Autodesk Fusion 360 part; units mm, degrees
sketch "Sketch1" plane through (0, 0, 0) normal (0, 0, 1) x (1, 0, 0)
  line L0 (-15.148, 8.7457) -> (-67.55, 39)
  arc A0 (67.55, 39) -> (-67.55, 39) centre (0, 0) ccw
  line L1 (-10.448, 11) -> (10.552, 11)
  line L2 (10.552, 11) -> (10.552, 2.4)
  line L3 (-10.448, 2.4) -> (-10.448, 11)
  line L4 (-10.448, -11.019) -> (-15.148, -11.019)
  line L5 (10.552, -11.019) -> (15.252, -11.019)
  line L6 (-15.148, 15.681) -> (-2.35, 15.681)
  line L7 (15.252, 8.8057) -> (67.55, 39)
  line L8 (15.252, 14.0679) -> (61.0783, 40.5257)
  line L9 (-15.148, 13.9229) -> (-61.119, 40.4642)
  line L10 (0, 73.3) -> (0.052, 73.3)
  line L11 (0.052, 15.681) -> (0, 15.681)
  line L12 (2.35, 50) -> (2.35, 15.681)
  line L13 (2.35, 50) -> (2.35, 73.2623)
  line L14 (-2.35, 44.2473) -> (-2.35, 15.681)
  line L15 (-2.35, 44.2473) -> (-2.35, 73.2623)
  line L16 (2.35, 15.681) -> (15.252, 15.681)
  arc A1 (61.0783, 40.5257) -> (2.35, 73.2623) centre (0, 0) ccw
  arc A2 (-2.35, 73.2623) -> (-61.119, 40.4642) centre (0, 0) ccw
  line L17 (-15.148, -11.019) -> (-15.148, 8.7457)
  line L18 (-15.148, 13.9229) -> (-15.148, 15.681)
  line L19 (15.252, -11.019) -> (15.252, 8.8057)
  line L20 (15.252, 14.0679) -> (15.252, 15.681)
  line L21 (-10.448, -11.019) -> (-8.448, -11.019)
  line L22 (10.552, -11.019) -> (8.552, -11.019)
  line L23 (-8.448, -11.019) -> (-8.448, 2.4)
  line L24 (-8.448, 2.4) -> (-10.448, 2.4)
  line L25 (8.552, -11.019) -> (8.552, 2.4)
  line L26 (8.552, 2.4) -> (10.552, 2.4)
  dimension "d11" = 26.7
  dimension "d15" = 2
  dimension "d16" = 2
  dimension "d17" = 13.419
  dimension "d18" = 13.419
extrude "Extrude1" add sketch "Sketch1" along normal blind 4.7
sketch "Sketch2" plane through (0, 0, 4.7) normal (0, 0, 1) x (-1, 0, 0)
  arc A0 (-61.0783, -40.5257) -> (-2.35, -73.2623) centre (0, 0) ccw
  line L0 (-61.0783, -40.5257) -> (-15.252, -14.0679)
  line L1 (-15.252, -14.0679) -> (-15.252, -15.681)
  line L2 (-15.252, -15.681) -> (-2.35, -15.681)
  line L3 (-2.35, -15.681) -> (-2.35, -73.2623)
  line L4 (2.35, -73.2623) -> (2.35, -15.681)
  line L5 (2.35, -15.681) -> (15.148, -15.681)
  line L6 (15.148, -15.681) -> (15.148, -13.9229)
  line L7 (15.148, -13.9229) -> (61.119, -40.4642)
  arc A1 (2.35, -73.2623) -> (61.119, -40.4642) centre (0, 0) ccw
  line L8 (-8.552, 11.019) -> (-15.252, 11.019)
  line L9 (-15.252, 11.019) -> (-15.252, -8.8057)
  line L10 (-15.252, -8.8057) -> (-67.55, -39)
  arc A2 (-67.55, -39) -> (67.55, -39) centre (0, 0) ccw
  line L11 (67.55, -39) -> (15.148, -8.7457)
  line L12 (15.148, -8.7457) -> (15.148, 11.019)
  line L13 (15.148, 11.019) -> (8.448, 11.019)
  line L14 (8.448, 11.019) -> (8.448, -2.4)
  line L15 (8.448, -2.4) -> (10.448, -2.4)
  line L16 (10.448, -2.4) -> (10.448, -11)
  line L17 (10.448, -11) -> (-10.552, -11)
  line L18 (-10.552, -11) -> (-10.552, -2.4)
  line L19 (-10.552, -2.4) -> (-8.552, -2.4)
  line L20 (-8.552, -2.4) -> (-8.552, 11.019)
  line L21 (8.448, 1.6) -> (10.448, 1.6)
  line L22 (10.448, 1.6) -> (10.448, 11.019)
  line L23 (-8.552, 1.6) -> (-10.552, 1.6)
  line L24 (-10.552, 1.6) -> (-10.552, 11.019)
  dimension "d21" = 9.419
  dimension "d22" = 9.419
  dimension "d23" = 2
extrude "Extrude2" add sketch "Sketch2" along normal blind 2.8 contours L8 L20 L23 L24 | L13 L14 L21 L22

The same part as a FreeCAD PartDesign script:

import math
import FreeCAD as App
import Part
import Sketcher
from FreeCAD import Vector
Q = App.Units.Quantity


def add_polygon(sketch, points):
    """Adds a closed chain of lines whose ends are joined by coincident constraints."""
    first, n = sketch.GeometryCount, len(points)
    for a, b in zip(points, points[1:] + points[:1]):
        sketch.addGeometry(Part.LineSegment(App.Vector(*a, 0), App.Vector(*b, 0)), False)
    for i in range(n):
        sketch.addConstraint(Sketcher.Constraint("Coincident", first + i, 2, first + (i + 1) % n, 1))

doc = App.newDocument("Part")
body = doc.addObject("PartDesign::Body", "Body")

# Sketch on XY plane
sketch1 = body.newObject("Sketcher::SketchObject", "Sketch")
sketch1.AttachmentSupport = (doc.getObject("XY_Plane"), [""])
sketch1.MapMode = "FlatFace"
sketch1.addGeometry(Part.LineSegment(Vector(-67.5, 39, 0), Vector(-15.1, 8.7, 0)), False)
sketch1.addGeometry(Part.LineSegment(Vector(-15.1, 8.7, 0), Vector(-15.1, -11, 0)), False)
sketch1.addGeometry(Part.LineSegment(Vector(-15.1, -11, 0), Vector(-8.4, -11, 0)), False)
sketch1.addGeometry(Part.LineSegment(Vector(-8.4, -11, 0), Vector(-8.4, 2.4, 0)), False)
sketch1.addGeometry(Part.LineSegment(Vector(-8.4, 2.4, 0), Vector(-10.4, 2.4, 0)), False)
sketch1.addGeometry(Part.LineSegment(Vector(-10.4, 2.4, 0), Vector(-10.4, 11, 0)), False)
sketch1.addGeometry(Part.LineSegment(Vector(-10.4, 11, 0), Vector(10.6, 11, 0)), False)
sketch1.addGeometry(Part.LineSegment(Vector(10.6, 11, 0), Vector(10.6, 2.4, 0)), False)
sketch1.addGeometry(Part.LineSegment(Vector(10.6, 2.4, 0), Vector(8.6, 2.4, 0)), False)
sketch1.addGeometry(Part.LineSegment(Vector(8.6, 2.4, 0), Vector(8.6, -11, 0)), False)
sketch1.addGeometry(Part.LineSegment(Vector(8.6, -11, 0), Vector(15.3, -11, 0)), False)
sketch1.addGeometry(Part.LineSegment(Vector(15.3, -11, 0), Vector(15.3, 8.8, 0)), False)
sketch1.addGeometry(Part.LineSegment(Vector(15.3, 8.8, 0), Vector(67.5, 39, 0)), False)
sketch1.addGeometry(Part.ArcOfCircle(Part.Circle(Vector(0, 0, 0), Vector(0, 0, 1), 78), math.radians(30), math.radians(150)), False)
sketch1.addGeometry(Part.LineSegment(Vector(-2.4, 15.7, 0), Vector(-15.1, 15.7, 0)), False)
sketch1.addGeometry(Part.LineSegment(Vector(-15.1, 15.7, 0), Vector(-15.1, 13.9, 0)), False)
sketch1.addGeometry(Part.LineSegment(Vector(-15.1, 13.9, 0), Vector(-61.1, 40.5, 0)), False)
sketch1.addGeometry(Part.ArcOfCircle(Part.Circle(Vector(0, 0, 0), Vector(0, 0, 1), 73.3), math.radians(92), math.radians(146)), False)
sketch1.addGeometry(Part.LineSegment(Vector(-2.4, 73.3, 0), Vector(-2.4, 15.7, 0)), False)
sketch1.addGeometry(Part.LineSegment(Vector(61.1, 40.5, 0), Vector(15.3, 14.1, 0)), False)
sketch1.addGeometry(Part.LineSegment(Vector(15.3, 14.1, 0), Vector(15.3, 15.7, 0)), False)
sketch1.addGeometry(Part.LineSegment(Vector(15.3, 15.7, 0), Vector(2.4, 15.7, 0)), False)
sketch1.addGeometry(Part.LineSegment(Vector(2.4, 15.7, 0), Vector(2.4, 73.3, 0)), False)
sketch1.addGeometry(Part.ArcOfCircle(Part.Circle(Vector(0, 0, 0), Vector(0, 0, 1), 73.3), math.radians(34), math.radians(88)), False)
sketch1.addConstraint(Sketcher.Constraint("Coincident", 0, 2, 1, 1))
sketch1.addConstraint(Sketcher.Constraint("Coincident", 1, 2, 2, 1))
sketch1.addConstraint(Sketcher.Constraint("Coincident", 2, 2, 3, 1))
sketch1.addConstraint(Sketcher.Constraint("Coincident", 3, 2, 4, 1))
sketch1.addConstraint(Sketcher.Constraint("Coincident", 4, 2, 5, 1))
sketch1.addConstraint(Sketcher.Constraint("Coincident", 5, 2, 6, 1))
sketch1.addConstraint(Sketcher.Constraint("Coincident", 6, 2, 7, 1))
sketch1.addConstraint(Sketcher.Constraint("Coincident", 7, 2, 8, 1))
sketch1.addConstraint(Sketcher.Constraint("Coincident", 8, 2, 9, 1))
sketch1.addConstraint(Sketcher.Constraint("Coincident", 9, 2, 10, 1))
sketch1.addConstraint(Sketcher.Constraint("Coincident", 10, 2, 11, 1))
sketch1.addConstraint(Sketcher.Constraint("Coincident", 11, 2, 12, 1))
sketch1.addConstraint(Sketcher.Constraint("Coincident", 12, 2, 13, 1))
sketch1.addConstraint(Sketcher.Constraint("Coincident", 13, 2, 0, 1))
sketch1.addConstraint(Sketcher.Constraint("Coincident", 14, 2, 15, 1))
sketch1.addConstraint(Sketcher.Constraint("Coincident", 15, 2, 16, 1))
sketch1.addConstraint(Sketcher.Constraint("Coincident", 16, 2, 17, 2))
sketch1.addConstraint(Sketcher.Constraint("Coincident", 17, 1, 18, 1))
sketch1.addConstraint(Sketcher.Constraint("Coincident", 18, 2, 14, 1))
sketch1.addConstraint(Sketcher.Constraint("Coincident", 19, 2, 20, 1))
sketch1.addConstraint(Sketcher.Constraint("Coincident", 20, 2, 21, 1))
sketch1.addConstraint(Sketcher.Constraint("Coincident", 21, 2, 22, 1))
sketch1.addConstraint(Sketcher.Constraint("Coincident", 22, 2, 23, 2))
sketch1.addConstraint(Sketcher.Constraint("Coincident", 23, 1, 19, 1))
sketch1.addConstraint(Sketcher.Constraint("Vertical", 1))
sketch1.addConstraint(Sketcher.Constraint("Horizontal", 2))
sketch1.addConstraint(Sketcher.Constraint("Vertical", 3))
sketch1.addConstraint(Sketcher.Constraint("Horizontal", 4))
sketch1.addConstraint(Sketcher.Constraint("Vertical", 5))
sketch1.addConstraint(Sketcher.Constraint("Horizontal", 6))
sketch1.addConstraint(Sketcher.Constraint("Vertical", 7))
sketch1.addConstraint(Sketcher.Constraint("Horizontal", 8))
sketch1.addConstraint(Sketcher.Constraint("Vertical", 9))
sketch1.addConstraint(Sketcher.Constraint("Horizontal", 10))
sketch1.addConstraint(Sketcher.Constraint("Vertical", 11))
sketch1.addConstraint(Sketcher.Constraint("Horizontal", 14))
sketch1.addConstraint(Sketcher.Constraint("Vertical", 15))
sketch1.addConstraint(Sketcher.Constraint("Vertical", 18))
sketch1.addConstraint(Sketcher.Constraint("Vertical", 20))
sketch1.addConstraint(Sketcher.Constraint("Horizontal", 21))
sketch1.addConstraint(Sketcher.Constraint("Vertical", 22))
sketch1.addConstraint(Sketcher.Constraint("Coincident", 13, 3, -1, 1))
sketch1.addConstraint(Sketcher.Constraint("Coincident", 17, 3, -1, 1))
sketch1.addConstraint(Sketcher.Constraint("Coincident", 23, 3, -1, 1))
sketch1.addConstraint(Sketcher.Constraint("Equal", 17, 23))
sketch1.addConstraint(Sketcher.Constraint("Symmetric", 18, 2, 21, 2, -2))
sketch1.addConstraint(Sketcher.Constraint("Parallel", 0, 16))
sketch1.addConstraint(Sketcher.Constraint("Parallel", 12, 19))
sketch1.addConstraint(Sketcher.Constraint("Horizontal", 4, 2, 7, 2))
sketch1.addConstraint(Sketcher.Constraint("Horizontal", 2, 2, 9, 2))
sketch1.addConstraint(Sketcher.Constraint("Horizontal", 12, 2, 13, 2))
sketch1.addConstraint(Sketcher.Constraint("Vertical", 1, 2, 14, 2))
sketch1.addConstraint(Sketcher.Constraint("Vertical", 11, 2, 19, 2))
sketch1.addConstraint(Sketcher.Constraint("Equal", 4, 8))
sketch1.addConstraint(Sketcher.Constraint("Equal", 2, 10))
sketch1.addConstraint(Sketcher.Constraint("DistanceX", 4, 2, 4, 1, Q("2 mm")))
sketch1.addConstraint(Sketcher.Constraint("Radius", 13, Q("78 mm")))
sketch1.addConstraint(Sketcher.Constraint("Radius", 17, Q("73.3 mm")))
sketch1.addConstraint(Sketcher.Constraint("DistanceX", 6, 1, 6, 2, Q("21 mm")))
sketch1.addConstraint(Sketcher.Constraint("DistanceY", 3, 1, 3, 2, Q("13.419 mm")))
sketch1.addConstraint(Sketcher.Constraint("Angle", 0, Q("-30 deg")))
sketch1.addConstraint(Sketcher.Constraint("Angle", 12, Q("30 deg")))
sketch1.addConstraint(Sketcher.Constraint("DistanceX", 2, 1, 2, 2, Q("6.7 mm")))
sketch1.addConstraint(Sketcher.Constraint("DistanceY", 5, 1, 5, 2, Q("8.6 mm")))
sketch1.addConstraint(Sketcher.Constraint("DistanceY", -1, 1, 5, 2, Q("11 mm")))
sketch1.addConstraint(Sketcher.Constraint("DistanceY", -1, 1, 12, 2, Q("39 mm")))
sketch1.addConstraint(Sketcher.Constraint("DistanceX", 18, 2, 21, 2, Q("4.7 mm")))
sketch1.addConstraint(Sketcher.Constraint("DistanceX", 14, 2, 14, 1, Q("12.798 mm")))
sketch1.addConstraint(Sketcher.Constraint("DistanceY", 15, 2, 15, 1, Q("1.758 mm")))
sketch1.addConstraint(Sketcher.Constraint("DistanceY", 20, 1, 20, 2, Q("1.613 mm")))
sketch1.addConstraint(Sketcher.Constraint("DistanceY", 11, 2, 23, 1, Q("31.72 mm")))
pad1 = body.newObject("PartDesign::Pad", "Pad")
pad1.Profile = sketch1
pad1.Length = 4.7

# Sketch on XY plane
sketch2 = body.newObject("Sketcher::SketchObject", "Sketch001")
sketch2.AttachmentSupport = (doc.getObject("XY_Plane"), [""])
sketch2.MapMode = "FlatFace"
sketch2.AttachmentOffset = App.Placement(Vector(0, 0, 4.7), App.Rotation())
add_polygon(sketch2, [(8.6, -1.6), (8.6, -11), (10.6, -11), (10.6, -1.6)])  # lines 0-3
add_polygon(sketch2, [(-10.4, -1.6), (-10.4, -11), (-8.4, -11), (-8.4, -1.6)])  # lines 4-7
sketch2.addConstraint(Sketcher.Constraint("Vertical", 0))
sketch2.addConstraint(Sketcher.Constraint("Horizontal", 1))
sketch2.addConstraint(Sketcher.Constraint("Vertical", 2))
sketch2.addConstraint(Sketcher.Constraint("Horizontal", 3))
sketch2.addConstraint(Sketcher.Constraint("Vertical", 4))
sketch2.addConstraint(Sketcher.Constraint("Horizontal", 5))
sketch2.addConstraint(Sketcher.Constraint("Vertical", 6))
sketch2.addConstraint(Sketcher.Constraint("Horizontal", 7))
sketch2.addConstraint(Sketcher.Constraint("Horizontal", 1, 2, 4, 2))
sketch2.addConstraint(Sketcher.Constraint("Horizontal", 3, 2, 6, 2))
sketch2.addConstraint(Sketcher.Constraint("Equal", 3, 5))
sketch2.addConstraint(Sketcher.Constraint("DistanceX", 1, 1, 1, 2, Q("2 mm")))
sketch2.addConstraint(Sketcher.Constraint("DistanceY", 0, 2, 0, 1, Q("9.419 mm")))
sketch2.addConstraint(Sketcher.Constraint("DistanceX", 4, 2, 0, 2, Q("19 mm")))
sketch2.addConstraint(Sketcher.Constraint("DistanceY", 2, 2, -1, 1, Q("1.6 mm")))
sketch2.addConstraint(Sketcher.Constraint("DistanceX", -1, 1, 0, 2, Q("8.552 mm")))
pad2 = body.newObject("PartDesign::Pad", "Pad001")
pad2.Profile = sketch2
pad2.Length = 2.8

doc.recompute()
